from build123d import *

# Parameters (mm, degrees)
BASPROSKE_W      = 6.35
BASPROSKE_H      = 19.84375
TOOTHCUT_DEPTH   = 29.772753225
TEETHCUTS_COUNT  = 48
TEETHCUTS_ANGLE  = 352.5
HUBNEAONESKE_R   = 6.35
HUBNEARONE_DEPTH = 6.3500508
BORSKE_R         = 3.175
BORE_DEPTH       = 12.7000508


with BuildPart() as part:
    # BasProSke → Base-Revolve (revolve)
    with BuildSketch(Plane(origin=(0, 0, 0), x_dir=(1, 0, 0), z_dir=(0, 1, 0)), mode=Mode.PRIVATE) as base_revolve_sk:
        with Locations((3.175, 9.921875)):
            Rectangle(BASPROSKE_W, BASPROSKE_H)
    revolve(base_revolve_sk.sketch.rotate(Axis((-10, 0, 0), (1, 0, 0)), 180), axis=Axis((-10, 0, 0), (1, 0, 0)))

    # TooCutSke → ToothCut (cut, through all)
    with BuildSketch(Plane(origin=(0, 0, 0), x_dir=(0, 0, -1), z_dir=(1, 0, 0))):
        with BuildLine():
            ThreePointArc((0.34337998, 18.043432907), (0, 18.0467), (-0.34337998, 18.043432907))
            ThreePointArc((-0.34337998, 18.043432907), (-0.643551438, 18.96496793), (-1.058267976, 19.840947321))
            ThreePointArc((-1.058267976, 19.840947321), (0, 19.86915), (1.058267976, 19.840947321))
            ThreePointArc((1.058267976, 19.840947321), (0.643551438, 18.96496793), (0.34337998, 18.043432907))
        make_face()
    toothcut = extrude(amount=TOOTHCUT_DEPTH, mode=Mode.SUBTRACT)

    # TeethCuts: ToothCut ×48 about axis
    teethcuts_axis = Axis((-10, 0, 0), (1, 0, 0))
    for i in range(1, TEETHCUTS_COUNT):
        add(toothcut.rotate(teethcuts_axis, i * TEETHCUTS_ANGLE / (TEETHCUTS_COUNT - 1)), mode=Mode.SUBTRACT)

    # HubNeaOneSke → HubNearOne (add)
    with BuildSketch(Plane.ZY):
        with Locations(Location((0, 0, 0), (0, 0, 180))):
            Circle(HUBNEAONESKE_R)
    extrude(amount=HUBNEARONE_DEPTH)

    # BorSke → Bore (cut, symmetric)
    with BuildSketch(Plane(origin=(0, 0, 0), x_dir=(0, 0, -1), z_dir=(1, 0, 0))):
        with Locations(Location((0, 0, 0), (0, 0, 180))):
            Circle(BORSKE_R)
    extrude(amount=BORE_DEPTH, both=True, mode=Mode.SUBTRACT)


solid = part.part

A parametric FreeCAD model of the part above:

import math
import FreeCAD as App
import Part
import Sketcher
Q = App.Units.Quantity

doc = App.newDocument("Part")
body = doc.addObject("PartDesign::Body", "Body")

# Sketch on XZ plane
sketch1 = doc.addObject("Sketcher::SketchObject", "Sketch")
body.addObject(sketch1)
sketch1.AttachmentSupport = (doc.XZ_Plane, [""])
sketch1.MapMode = "FlatFace"
sketch1.addGeometry([
    Part.LineSegment(App.Vector(0, -19.84375, 0), App.Vector(0, 0, 0)),
    Part.LineSegment(App.Vector(0, 0, 0), App.Vector(6.35, 0, 0)),
    Part.LineSegment(App.Vector(6.35, 0, 0), App.Vector(6.35, -19.84375, 0)),
    Part.LineSegment(App.Vector(6.35, -19.84375, 0), App.Vector(0, -19.84375, 0)),
], False)
sketch1.addConstraint([
    Sketcher.Constraint("Coincident", 0, 2, 1, 1),
    Sketcher.Constraint("Coincident", 1, 2, 2, 1),
    Sketcher.Constraint("Coincident", 2, 2, 3, 1),
    Sketcher.Constraint("Coincident", 3, 2, 0, 1),
    Sketcher.Constraint("Vertical", 0),
    Sketcher.Constraint("Horizontal", 1),
    Sketcher.Constraint("Vertical", 2),
    Sketcher.Constraint("Horizontal", 3),
    Sketcher.Constraint("Coincident", 0, 2, -1, 1),
    Sketcher.Constraint("DistanceX", 1, 1, 1, 2, Q("0.25 in")),
    Sketcher.Constraint("DistanceY", 0, 1, 0, 2, Q("0.78125 in")),
])
revolution = doc.addObject("PartDesign::Revolution", "Revolution")
body.addObject(revolution)
revolution.Profile = sketch1
revolution.ReferenceAxis = (sketch1, ["H_Axis"])
revolution.Angle = 360

# Sketch on YZ plane
sketch2 = doc.addObject("Sketcher::SketchObject", "Sketch001")
body.addObject(sketch2)
sketch2.AttachmentSupport = (doc.YZ_Plane, [""])
sketch2.MapMode = "FlatFace"
sketch2.addGeometry([
    Part.ArcOfCircle(Part.Circle(App.Vector(0.000002, 0, 0), App.Vector(0, 0, 1), 18.046698), math.radians(-1.09025), math.radians(1.09025)),
    Part.ArcOfCircle(Part.Circle(App.Vector(16.148959, -7.724123, 0), App.Vector(0, 0, 1), 7.62), math.radians(61.01944), math.radians(75.604219)),
    Part.ArcOfCircle(Part.Circle(App.Vector(0, 0, 0), App.Vector(0, 0, 1), 19.86915), math.radians(-3.053125), math.radians(3.053125)),
    Part.ArcOfCircle(Part.Circle(App.Vector(16.148959, 7.724123, 0), App.Vector(0, 0, 1), 7.62), math.radians(-75.604219), math.radians(-61.01944)),
], False)
sketch2.addConstraint([
    Sketcher.Constraint("Coincident", 0, 1, 1, 2),
    Sketcher.Constraint("Coincident", 1, 1, 2, 1),
    Sketcher.Constraint("Coincident", 2, 2, 3, 2),
    Sketcher.Constraint("Coincident", 3, 1, 0, 2),
    Sketcher.Constraint("Coincident", 0, 3, -1, 1),
    Sketcher.Constraint("Coincident", 2, 3, -1, 1),
    Sketcher.Constraint("Equal", 1, 3),
    Sketcher.Constraint("Symmetric", 1, 3, 3, 3, -1),
    Sketcher.Constraint("Radius", 1, Q("0.3 in")),
    Sketcher.Constraint("Radius", 0, Q("0.7104999 in")),
    Sketcher.Constraint("Radius", 2, Q("19.86915 mm")),
    Sketcher.Constraint("DistanceX", -1, 1, 1, 3, Q("16.148959 mm")),
    Sketcher.Constraint("DistanceY", 0, 1, -1, 1, Q("0.34338 mm")),
])
pocket1 = doc.addObject("PartDesign::Pocket", "Pocket")
body.addObject(pocket1)
pocket1.Profile = sketch2
pocket1.Type = "ThroughAll"
pocket1.Reversed = True
doc.recompute()

polarpattern = doc.addObject("PartDesign::PolarPattern", "PolarPattern")
body.addObject(polarpattern)
polarpattern.Originals = [pocket1]
polarpattern.Axis = (doc.X_Axis, [""])
polarpattern.Angle = 360
polarpattern.Occurrences = 48
body.Tip = polarpattern

# Sketch on YZ plane
sketch3 = doc.addObject("Sketcher::SketchObject", "Sketch002")
body.addObject(sketch3)
sketch3.AttachmentSupport = (doc.YZ_Plane, [""])
sketch3.MapMode = "FlatFace"
sketch3.addGeometry(Part.Circle(App.Vector(0, 0, 0), App.Vector(0, 0, 1), 6.35), False)
sketch3.addConstraint([
    Sketcher.Constraint("Coincident", 0, 3, -1, 1),
    Sketcher.Constraint("Diameter", 0, Q("0.5 in")),
])
pad1 = doc.addObject("PartDesign::Pad", "Pad")
body.addObject(pad1)
pad1.Profile = sketch3
pad1.Length = 6.350051
pad1.Reversed = True

# Sketch on YZ plane
sketch4 = doc.addObject("Sketcher::SketchObject", "Sketch003")
body.addObject(sketch4)
sketch4.AttachmentSupport = (doc.YZ_Plane, [""])
sketch4.MapMode = "FlatFace"
sketch4.addGeometry(Part.Circle(App.Vector(0, 0, 0), App.Vector(0, 0, 1), 3.175), False)
sketch4.addConstraint([
    Sketcher.Constraint("Coincident", 0, 3, -1, 1),
    Sketcher.Constraint("Diameter", 0, Q("0.25 in")),
])
pocket2 = doc.addObject("PartDesign::Pocket", "Pocket001")
body.addObject(pocket2)
pocket2.Profile = sketch4
pocket2.Length = 25.400102
pocket2.Midplane = True

doc.recompute()
